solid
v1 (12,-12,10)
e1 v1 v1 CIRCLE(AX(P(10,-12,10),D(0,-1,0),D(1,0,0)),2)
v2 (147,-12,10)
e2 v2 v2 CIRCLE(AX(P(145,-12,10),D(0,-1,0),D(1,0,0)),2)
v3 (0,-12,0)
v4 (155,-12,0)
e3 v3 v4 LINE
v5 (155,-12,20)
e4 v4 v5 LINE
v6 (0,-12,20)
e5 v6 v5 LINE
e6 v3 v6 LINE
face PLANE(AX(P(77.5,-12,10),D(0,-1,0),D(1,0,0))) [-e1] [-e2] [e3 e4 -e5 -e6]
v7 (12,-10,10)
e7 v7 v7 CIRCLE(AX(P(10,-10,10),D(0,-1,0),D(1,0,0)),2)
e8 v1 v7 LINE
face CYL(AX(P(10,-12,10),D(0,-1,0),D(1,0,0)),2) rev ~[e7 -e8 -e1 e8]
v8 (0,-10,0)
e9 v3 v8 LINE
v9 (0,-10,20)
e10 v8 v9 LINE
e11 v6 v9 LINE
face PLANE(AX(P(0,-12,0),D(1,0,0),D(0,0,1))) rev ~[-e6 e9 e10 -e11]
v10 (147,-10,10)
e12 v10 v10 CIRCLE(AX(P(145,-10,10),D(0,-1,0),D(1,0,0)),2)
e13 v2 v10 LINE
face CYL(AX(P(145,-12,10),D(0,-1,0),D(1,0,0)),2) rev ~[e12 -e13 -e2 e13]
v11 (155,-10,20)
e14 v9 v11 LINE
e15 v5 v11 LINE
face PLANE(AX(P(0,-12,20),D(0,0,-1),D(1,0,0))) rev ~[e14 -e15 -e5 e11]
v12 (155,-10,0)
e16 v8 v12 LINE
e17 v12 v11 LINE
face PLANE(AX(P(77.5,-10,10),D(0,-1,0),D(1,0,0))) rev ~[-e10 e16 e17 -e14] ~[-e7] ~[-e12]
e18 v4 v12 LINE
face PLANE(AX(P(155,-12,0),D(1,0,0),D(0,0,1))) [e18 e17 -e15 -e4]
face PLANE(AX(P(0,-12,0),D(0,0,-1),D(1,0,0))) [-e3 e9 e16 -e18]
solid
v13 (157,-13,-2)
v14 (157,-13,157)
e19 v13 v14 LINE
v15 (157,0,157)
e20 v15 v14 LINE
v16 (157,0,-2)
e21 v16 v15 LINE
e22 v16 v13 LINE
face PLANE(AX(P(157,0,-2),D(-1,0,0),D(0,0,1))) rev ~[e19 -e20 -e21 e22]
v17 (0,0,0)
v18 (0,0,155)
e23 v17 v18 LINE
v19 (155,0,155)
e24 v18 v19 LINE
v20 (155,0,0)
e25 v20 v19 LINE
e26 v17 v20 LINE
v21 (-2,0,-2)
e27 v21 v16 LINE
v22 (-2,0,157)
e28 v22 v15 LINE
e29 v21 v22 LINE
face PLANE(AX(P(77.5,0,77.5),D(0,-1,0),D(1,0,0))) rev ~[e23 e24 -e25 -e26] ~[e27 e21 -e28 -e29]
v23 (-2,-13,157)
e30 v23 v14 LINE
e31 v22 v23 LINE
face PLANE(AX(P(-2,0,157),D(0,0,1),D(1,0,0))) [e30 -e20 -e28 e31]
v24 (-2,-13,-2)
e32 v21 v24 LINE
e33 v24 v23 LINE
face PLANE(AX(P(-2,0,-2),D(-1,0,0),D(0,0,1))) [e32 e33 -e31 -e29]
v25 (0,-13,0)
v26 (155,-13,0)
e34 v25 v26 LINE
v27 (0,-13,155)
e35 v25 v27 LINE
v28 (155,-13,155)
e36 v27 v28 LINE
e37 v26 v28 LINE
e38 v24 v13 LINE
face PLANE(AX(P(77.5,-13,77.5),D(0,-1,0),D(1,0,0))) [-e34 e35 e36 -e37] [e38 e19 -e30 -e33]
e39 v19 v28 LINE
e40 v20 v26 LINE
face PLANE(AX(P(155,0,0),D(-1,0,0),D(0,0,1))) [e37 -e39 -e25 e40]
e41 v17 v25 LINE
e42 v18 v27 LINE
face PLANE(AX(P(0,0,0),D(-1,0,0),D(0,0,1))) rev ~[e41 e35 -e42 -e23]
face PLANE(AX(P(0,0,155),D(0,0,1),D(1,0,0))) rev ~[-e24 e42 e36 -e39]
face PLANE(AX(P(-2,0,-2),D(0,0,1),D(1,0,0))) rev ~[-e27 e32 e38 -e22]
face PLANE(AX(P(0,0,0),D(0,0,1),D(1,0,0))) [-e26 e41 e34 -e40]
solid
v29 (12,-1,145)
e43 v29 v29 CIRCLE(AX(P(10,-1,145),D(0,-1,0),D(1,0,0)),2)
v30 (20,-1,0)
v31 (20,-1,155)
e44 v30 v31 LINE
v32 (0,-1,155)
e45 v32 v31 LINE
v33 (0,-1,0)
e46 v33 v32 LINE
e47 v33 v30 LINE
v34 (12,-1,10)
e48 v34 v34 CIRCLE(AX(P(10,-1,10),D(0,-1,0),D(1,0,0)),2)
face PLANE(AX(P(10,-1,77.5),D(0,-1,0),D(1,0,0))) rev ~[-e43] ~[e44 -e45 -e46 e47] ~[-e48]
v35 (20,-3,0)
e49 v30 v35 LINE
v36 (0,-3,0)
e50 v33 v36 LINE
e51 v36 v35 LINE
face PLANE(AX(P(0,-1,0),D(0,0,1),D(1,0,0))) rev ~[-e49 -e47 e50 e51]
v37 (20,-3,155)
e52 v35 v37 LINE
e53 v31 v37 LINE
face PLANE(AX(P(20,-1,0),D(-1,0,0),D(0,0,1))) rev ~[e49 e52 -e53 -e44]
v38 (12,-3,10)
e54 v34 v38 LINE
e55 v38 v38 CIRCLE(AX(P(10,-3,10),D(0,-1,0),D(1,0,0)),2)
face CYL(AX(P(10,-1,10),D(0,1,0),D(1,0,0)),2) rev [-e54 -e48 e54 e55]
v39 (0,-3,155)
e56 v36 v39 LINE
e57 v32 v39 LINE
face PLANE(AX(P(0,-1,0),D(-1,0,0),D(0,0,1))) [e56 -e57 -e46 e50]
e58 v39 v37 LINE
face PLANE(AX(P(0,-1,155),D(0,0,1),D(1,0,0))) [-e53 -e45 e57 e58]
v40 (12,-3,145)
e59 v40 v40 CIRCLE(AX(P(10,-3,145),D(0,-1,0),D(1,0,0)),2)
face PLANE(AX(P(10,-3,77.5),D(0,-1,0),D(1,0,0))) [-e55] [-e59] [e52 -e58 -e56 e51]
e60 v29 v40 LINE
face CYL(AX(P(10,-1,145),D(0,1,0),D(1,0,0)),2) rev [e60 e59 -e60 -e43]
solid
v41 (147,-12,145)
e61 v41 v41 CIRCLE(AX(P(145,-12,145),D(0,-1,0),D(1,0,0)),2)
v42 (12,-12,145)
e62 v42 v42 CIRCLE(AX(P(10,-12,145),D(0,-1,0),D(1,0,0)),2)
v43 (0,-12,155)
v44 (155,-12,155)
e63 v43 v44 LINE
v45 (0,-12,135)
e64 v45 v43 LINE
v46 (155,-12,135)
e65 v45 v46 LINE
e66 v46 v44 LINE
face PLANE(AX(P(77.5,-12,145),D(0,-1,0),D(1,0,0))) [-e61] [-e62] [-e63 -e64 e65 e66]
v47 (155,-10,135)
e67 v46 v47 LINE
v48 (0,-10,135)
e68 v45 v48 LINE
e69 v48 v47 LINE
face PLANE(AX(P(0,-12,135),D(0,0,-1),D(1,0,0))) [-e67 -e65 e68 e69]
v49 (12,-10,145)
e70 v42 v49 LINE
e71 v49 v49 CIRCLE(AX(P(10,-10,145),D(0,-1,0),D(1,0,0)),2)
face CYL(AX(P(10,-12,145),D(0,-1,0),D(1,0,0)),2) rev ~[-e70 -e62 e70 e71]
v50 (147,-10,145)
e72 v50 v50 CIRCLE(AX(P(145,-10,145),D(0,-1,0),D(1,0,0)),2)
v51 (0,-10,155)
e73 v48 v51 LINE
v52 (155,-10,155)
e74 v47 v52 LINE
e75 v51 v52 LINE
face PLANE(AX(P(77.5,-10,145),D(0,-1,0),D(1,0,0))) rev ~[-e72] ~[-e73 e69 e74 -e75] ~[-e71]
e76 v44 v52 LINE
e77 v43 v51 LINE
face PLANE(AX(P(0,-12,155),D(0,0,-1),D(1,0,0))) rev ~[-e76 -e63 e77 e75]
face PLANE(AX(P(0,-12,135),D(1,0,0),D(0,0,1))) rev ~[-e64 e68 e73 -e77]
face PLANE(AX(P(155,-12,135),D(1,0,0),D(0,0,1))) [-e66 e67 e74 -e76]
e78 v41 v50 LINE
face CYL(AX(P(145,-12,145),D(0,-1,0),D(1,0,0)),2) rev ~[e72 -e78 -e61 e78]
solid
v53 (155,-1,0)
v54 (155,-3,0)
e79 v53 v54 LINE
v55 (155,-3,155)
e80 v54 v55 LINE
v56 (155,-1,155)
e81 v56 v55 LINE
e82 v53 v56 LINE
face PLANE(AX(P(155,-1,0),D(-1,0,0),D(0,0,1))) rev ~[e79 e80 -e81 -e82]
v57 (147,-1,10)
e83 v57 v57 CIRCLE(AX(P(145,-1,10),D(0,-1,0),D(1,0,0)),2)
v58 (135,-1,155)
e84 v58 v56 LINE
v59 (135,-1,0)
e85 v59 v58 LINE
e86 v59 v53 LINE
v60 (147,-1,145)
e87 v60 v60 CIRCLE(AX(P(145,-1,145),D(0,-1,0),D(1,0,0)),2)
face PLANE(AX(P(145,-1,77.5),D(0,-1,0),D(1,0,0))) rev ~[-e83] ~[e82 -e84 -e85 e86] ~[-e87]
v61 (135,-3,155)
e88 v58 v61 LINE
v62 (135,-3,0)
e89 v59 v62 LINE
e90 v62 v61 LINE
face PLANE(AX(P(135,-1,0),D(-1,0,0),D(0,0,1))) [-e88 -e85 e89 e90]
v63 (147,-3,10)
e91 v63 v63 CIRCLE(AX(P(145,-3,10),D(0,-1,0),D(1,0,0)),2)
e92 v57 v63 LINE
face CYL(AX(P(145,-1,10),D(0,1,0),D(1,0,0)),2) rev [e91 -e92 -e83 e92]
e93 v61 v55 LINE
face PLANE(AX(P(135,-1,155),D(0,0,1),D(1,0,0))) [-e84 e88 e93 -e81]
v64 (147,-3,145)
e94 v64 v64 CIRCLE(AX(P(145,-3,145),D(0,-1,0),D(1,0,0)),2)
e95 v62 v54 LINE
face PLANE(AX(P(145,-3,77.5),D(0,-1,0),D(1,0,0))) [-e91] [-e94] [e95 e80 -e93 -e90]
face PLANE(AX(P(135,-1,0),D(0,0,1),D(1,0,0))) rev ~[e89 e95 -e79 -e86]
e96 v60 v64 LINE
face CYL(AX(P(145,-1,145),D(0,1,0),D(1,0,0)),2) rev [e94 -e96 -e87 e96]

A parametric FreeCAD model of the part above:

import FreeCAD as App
import Part
import Sketcher

V = App.Vector
Q = App.Units.Quantity

doc = App.newDocument("Part")
body = doc.addObject("PartDesign::Body", "Body")

# Sketch on XZ plane
sketch1 = body.newObject("Sketcher::SketchObject", "Sketch")
sketch1.AttachmentSupport = (doc.getObject("XZ_Plane"), [""])
sketch1.MapMode = "FlatFace"
sketch1.addGeometry(Part.LineSegment(V(-2, 157, 0), V(-2, -2, 0)), False)
sketch1.addGeometry(Part.LineSegment(V(-2, -2, 0), V(157, -2, 0)), False)
sketch1.addGeometry(Part.LineSegment(V(157, -2, 0), V(157, 157, 0)), False)
sketch1.addGeometry(Part.LineSegment(V(157, 157, 0), V(-2, 157, 0)), False)
sketch1.addGeometry(Part.LineSegment(V(155, 0, 0), V(0, 0, 0)), False)
sketch1.addGeometry(Part.LineSegment(V(0, 0, 0), V(0, 155, 0)), False)
sketch1.addGeometry(Part.LineSegment(V(0, 155, 0), V(155, 155, 0)), False)
sketch1.addGeometry(Part.LineSegment(V(155, 155, 0), V(155, 0, 0)), False)
sketch1.addConstraint(Sketcher.Constraint("Coincident", 0, 2, 1, 1))
sketch1.addConstraint(Sketcher.Constraint("Coincident", 1, 2, 2, 1))
sketch1.addConstraint(Sketcher.Constraint("Coincident", 2, 2, 3, 1))
sketch1.addConstraint(Sketcher.Constraint("Coincident", 3, 2, 0, 1))
sketch1.addConstraint(Sketcher.Constraint("Coincident", 4, 2, 5, 1))
sketch1.addConstraint(Sketcher.Constraint("Coincident", 5, 2, 6, 1))
sketch1.addConstraint(Sketcher.Constraint("Coincident", 6, 2, 7, 1))
sketch1.addConstraint(Sketcher.Constraint("Coincident", 7, 2, 4, 1))
sketch1.addConstraint(Sketcher.Constraint("Vertical", 0))
sketch1.addConstraint(Sketcher.Constraint("Horizontal", 1))
sketch1.addConstraint(Sketcher.Constraint("Vertical", 2))
sketch1.addConstraint(Sketcher.Constraint("Horizontal", 3))
sketch1.addConstraint(Sketcher.Constraint("Horizontal", 4))
sketch1.addConstraint(Sketcher.Constraint("Vertical", 5))
sketch1.addConstraint(Sketcher.Constraint("Horizontal", 6))
sketch1.addConstraint(Sketcher.Constraint("Vertical", 7))
sketch1.addConstraint(Sketcher.Constraint("Coincident", 4, 2, -1, 1))
sketch1.addConstraint(Sketcher.Constraint("Equal", 3, 0))
sketch1.addConstraint(Sketcher.Constraint("Equal", 6, 5))
sketch1.addConstraint(Sketcher.Constraint("DistanceX", 1, 1, 1, 2, Q("159 mm")))
sketch1.addConstraint(Sketcher.Constraint("DistanceX", 4, 2, 4, 1, Q("155 mm")))
sketch1.addConstraint(Sketcher.Constraint("DistanceX", 0, 2, -1, 1, Q("2 mm")))
sketch1.addConstraint(Sketcher.Constraint("DistanceY", 0, 2, -1, 1, Q("2 mm")))
pad1 = body.newObject("PartDesign::Pad", "Pad")
pad1.Profile = sketch1
pad1.Length = 13
body2 = doc.addObject("PartDesign::Body", "Body001")

# Sketch on XZ plane
sketch2 = body2.newObject("Sketcher::SketchObject", "Sketch001")
sketch2.AttachmentSupport = (doc.getObject("XZ_Plane001"), [""])
sketch2.MapMode = "FlatFace"
sketch2.AttachmentOffset = App.Placement(V(0, 0, 1), App.Rotation())
sketch2.addGeometry(Part.LineSegment(V(0, 155, 0), V(0, 0, 0)), False)
sketch2.addGeometry(Part.LineSegment(V(0, 0, 0), V(20, 0, 0)), False)
sketch2.addGeometry(Part.LineSegment(V(20, 0, 0), V(20, 155, 0)), False)
sketch2.addGeometry(Part.LineSegment(V(20, 155, 0), V(0, 155, 0)), False)
sketch2.addGeometry(Part.Circle(V(10, 10, 0), V(0, 0, 1), 2), False)
sketch2.addGeometry(Part.Circle(V(10, 145, 0), V(0, 0, 1), 2), False)
sketch2.addConstraint(Sketcher.Constraint("Coincident", 0, 2, 1, 1))
sketch2.addConstraint(Sketcher.Constraint("Coincident", 1, 2, 2, 1))
sketch2.addConstraint(Sketcher.Constraint("Coincident", 2, 2, 3, 1))
sketch2.addConstraint(Sketcher.Constraint("Coincident", 3, 2, 0, 1))
sketch2.addConstraint(Sketcher.Constraint("Vertical", 0))
sketch2.addConstraint(Sketcher.Constraint("Horizontal", 1))
sketch2.addConstraint(Sketcher.Constraint("Vertical", 2))
sketch2.addConstraint(Sketcher.Constraint("Horizontal", 3))
sketch2.addConstraint(Sketcher.Constraint("Coincident", 0, 2, -1, 1))
sketch2.addConstraint(Sketcher.Constraint("Equal", 4, 5))
sketch2.addConstraint(Sketcher.Constraint("Vertical", 4, 3, 5, 3))
sketch2.addConstraint(Sketcher.Constraint("Diameter", 4, Q("4 mm")))
sketch2.addConstraint(Sketcher.Constraint("DistanceX", 1, 1, 1, 2, Q("20 mm")))
sketch2.addConstraint(Sketcher.Constraint("DistanceY", 0, 2, 0, 1, Q("155 mm")))
sketch2.addConstraint(Sketcher.Constraint("DistanceX", -1, 1, 4, 3, Q("10 mm")))
sketch2.addConstraint(Sketcher.Constraint("DistanceY", -1, 1, 4, 3, Q("10 mm")))
sketch2.addConstraint(Sketcher.Constraint("DistanceY", -1, 1, 5, 3, Q("145 mm")))
pad2 = body2.newObject("PartDesign::Pad", "Pad001")
pad2.Profile = sketch2
pad2.Length = 2
body3 = doc.addObject("PartDesign::Body", "Body002")

# Sketch on XZ plane
sketch3 = body3.newObject("Sketcher::SketchObject", "Sketch002")
sketch3.AttachmentSupport = (doc.getObject("XZ_Plane002"), [""])
sketch3.MapMode = "FlatFace"
sketch3.AttachmentOffset = App.Placement(V(0, 0, 1), App.Rotation())
sketch3.addGeometry(Part.LineSegment(V(135, 155, 0), V(135, 0, 0)), False)
sketch3.addGeometry(Part.LineSegment(V(135, 0, 0), V(155, 0, 0)), False)
sketch3.addGeometry(Part.LineSegment(V(155, 0, 0), V(155, 155, 0)), False)
sketch3.addGeometry(Part.LineSegment(V(155, 155, 0), V(135, 155, 0)), False)
sketch3.addGeometry(Part.Circle(V(145, 10, 0), V(0, 0, 1), 2), False)
sketch3.addGeometry(Part.Circle(V(145, 145, 0), V(0, 0, 1), 2), False)
sketch3.addConstraint(Sketcher.Constraint("Coincident", 0, 2, 1, 1))
sketch3.addConstraint(Sketcher.Constraint("Coincident", 1, 2, 2, 1))
sketch3.addConstraint(Sketcher.Constraint("Coincident", 2, 2, 3, 1))
sketch3.addConstraint(Sketcher.Constraint("Coincident", 3, 2, 0, 1))
sketch3.addConstraint(Sketcher.Constraint("Vertical", 0))
sketch3.addConstraint(Sketcher.Constraint("Horizontal", 1))
sketch3.addConstraint(Sketcher.Constraint("Vertical", 2))
sketch3.addConstraint(Sketcher.Constraint("Horizontal", 3))
sketch3.addConstraint(Sketcher.Constraint("Equal", 4, 5))
sketch3.addConstraint(Sketcher.Constraint("PointOnObject", 0, 2, -1))
sketch3.addConstraint(Sketcher.Constraint("Vertical", 4, 3, 5, 3))
sketch3.addConstraint(Sketcher.Constraint("Diameter", 4, Q("4 mm")))
sketch3.addConstraint(Sketcher.Constraint("DistanceX", 1, 1, 1, 2, Q("20 mm")))
sketch3.addConstraint(Sketcher.Constraint("DistanceY", 0, 2, 0, 1, Q("155 mm")))
sketch3.addConstraint(Sketcher.Constraint("DistanceX", -1, 1, 4, 3, Q("145 mm")))
sketch3.addConstraint(Sketcher.Constraint("DistanceY", -1, 1, 4, 3, Q("10 mm")))
sketch3.addConstraint(Sketcher.Constraint("DistanceY", -1, 1, 5, 3, Q("145 mm")))
sketch3.addConstraint(Sketcher.Constraint("DistanceX", -1, 1, 0, 2, Q("135 mm")))
pad3 = body3.newObject("PartDesign::Pad", "Pad002")
pad3.Profile = sketch3
pad3.Length = 2
body4 = doc.addObject("PartDesign::Body", "Body003")

# Sketch on XZ plane
sketch4 = body4.newObject("Sketcher::SketchObject", "Sketch003")
sketch4.AttachmentSupport = (doc.getObject("XZ_Plane003"), [""])
sketch4.MapMode = "FlatFace"
sketch4.AttachmentOffset = App.Placement(V(0, 0, 12), App.Rotation())
sketch4.addGeometry(Part.LineSegment(V(0, 155, 0), V(0, 135, 0)), False)
sketch4.addGeometry(Part.LineSegment(V(0, 135, 0), V(155, 135, 0)), False)
sketch4.addGeometry(Part.LineSegment(V(155, 135, 0), V(155, 155, 0)), False)
sketch4.addGeometry(Part.LineSegment(V(155, 155, 0), V(0, 155, 0)), False)
sketch4.addGeometry(Part.Circle(V(10, 145, 0), V(0, 0, 1), 2), False)
sketch4.addGeometry(Part.Circle(V(145, 145, 0), V(0, 0, 1), 2), False)
sketch4.addConstraint(Sketcher.Constraint("Coincident", 0, 2, 1, 1))
sketch4.addConstraint(Sketcher.Constraint("Coincident", 1, 2, 2, 1))
sketch4.addConstraint(Sketcher.Constraint("Coincident", 2, 2, 3, 1))
sketch4.addConstraint(Sketcher.Constraint("Coincident", 3, 2, 0, 1))
sketch4.addConstraint(Sketcher.Constraint("Vertical", 0))
sketch4.addConstraint(Sketcher.Constraint("Horizontal", 1))
sketch4.addConstraint(Sketcher.Constraint("Vertical", 2))
sketch4.addConstraint(Sketcher.Constraint("Horizontal", 3))
sketch4.addConstraint(Sketcher.Constraint("Equal", 4, 5))
sketch4.addConstraint(Sketcher.Constraint("PointOnObject", 0, 2, -2))
sketch4.addConstraint(Sketcher.Constraint("Horizontal", 4, 3, 5, 3))
sketch4.addConstraint(Sketcher.Constraint("Diameter", 4, Q("4 mm")))
sketch4.addConstraint(Sketcher.Constraint("DistanceX", 1, 1, 1, 2, Q("155 mm")))
sketch4.addConstraint(Sketcher.Constraint("DistanceY", 0, 2, 0, 1, Q("20 mm")))
sketch4.addConstraint(Sketcher.Constraint("DistanceX", -1, 1, 4, 3, Q("10 mm")))
sketch4.addConstraint(Sketcher.Constraint("DistanceY", -1, 1, 4, 3, Q("145 mm")))
sketch4.addConstraint(Sketcher.Constraint("DistanceX", -1, 1, 5, 3, Q("145 mm")))
sketch4.addConstraint(Sketcher.Constraint("DistanceY", -1, 1, 0, 2, Q("135 mm")))
pad4 = body4.newObject("PartDesign::Pad", "Pad003")
pad4.Profile = sketch4
pad4.Length = 2
pad4.Reversed = True
body5 = doc.addObject("PartDesign::Body", "Body004")

# Sketch on XZ plane
sketch5 = body5.newObject("Sketcher::SketchObject", "Sketch004")
sketch5.AttachmentSupport = (doc.getObject("XZ_Plane004"), [""])
sketch5.MapMode = "FlatFace"
sketch5.AttachmentOffset = App.Placement(V(0, 0, 12), App.Rotation())
sketch5.addGeometry(Part.LineSegment(V(0, 20, 0), V(0, 0, 0)), False)
sketch5.addGeometry(Part.LineSegment(V(0, 0, 0), V(155, 0, 0)), False)
sketch5.addGeometry(Part.LineSegment(V(155, 0, 0), V(155, 20, 0)), False)
sketch5.addGeometry(Part.LineSegment(V(155, 20, 0), V(0, 20, 0)), False)
sketch5.addGeometry(Part.Circle(V(10, 10, 0), V(0, 0, 1), 2), False)
sketch5.addGeometry(Part.Circle(V(145, 10, 0), V(0, 0, 1), 2), False)
sketch5.addConstraint(Sketcher.Constraint("Coincident", 0, 2, 1, 1))
sketch5.addConstraint(Sketcher.Constraint("Coincident", 1, 2, 2, 1))
sketch5.addConstraint(Sketcher.Constraint("Coincident", 2, 2, 3, 1))
sketch5.addConstraint(Sketcher.Constraint("Coincident", 3, 2, 0, 1))
sketch5.addConstraint(Sketcher.Constraint("Vertical", 0))
sketch5.addConstraint(Sketcher.Constraint("Horizontal", 1))
sketch5.addConstraint(Sketcher.Constraint("Vertical", 2))
sketch5.addConstraint(Sketcher.Constraint("Horizontal", 3))
sketch5.addConstraint(Sketcher.Constraint("Coincident", 0, 2, -1, 1))
sketch5.addConstraint(Sketcher.Constraint("Equal", 4, 5))
sketch5.addConstraint(Sketcher.Constraint("Horizontal", 4, 3, 5, 3))
sketch5.addConstraint(Sketcher.Constraint("Diameter", 4, Q("4 mm")))
sketch5.addConstraint(Sketcher.Constraint("DistanceX", 1, 1, 1, 2, Q("155 mm")))
sketch5.addConstraint(Sketcher.Constraint("DistanceY", 0, 2, 0, 1, Q("20 mm")))
sketch5.addConstraint(Sketcher.Constraint("DistanceX", -1, 1, 4, 3, Q("10 mm")))
sketch5.addConstraint(Sketcher.Constraint("DistanceY", -1, 1, 4, 3, Q("10 mm")))
sketch5.addConstraint(Sketcher.Constraint("DistanceX", -1, 1, 5, 3, Q("145 mm")))
pad5 = body5.newObject("PartDesign::Pad", "Pad004")
pad5.Profile = sketch5
pad5.Length = 2
pad5.Reversed = True

doc.recompute()
